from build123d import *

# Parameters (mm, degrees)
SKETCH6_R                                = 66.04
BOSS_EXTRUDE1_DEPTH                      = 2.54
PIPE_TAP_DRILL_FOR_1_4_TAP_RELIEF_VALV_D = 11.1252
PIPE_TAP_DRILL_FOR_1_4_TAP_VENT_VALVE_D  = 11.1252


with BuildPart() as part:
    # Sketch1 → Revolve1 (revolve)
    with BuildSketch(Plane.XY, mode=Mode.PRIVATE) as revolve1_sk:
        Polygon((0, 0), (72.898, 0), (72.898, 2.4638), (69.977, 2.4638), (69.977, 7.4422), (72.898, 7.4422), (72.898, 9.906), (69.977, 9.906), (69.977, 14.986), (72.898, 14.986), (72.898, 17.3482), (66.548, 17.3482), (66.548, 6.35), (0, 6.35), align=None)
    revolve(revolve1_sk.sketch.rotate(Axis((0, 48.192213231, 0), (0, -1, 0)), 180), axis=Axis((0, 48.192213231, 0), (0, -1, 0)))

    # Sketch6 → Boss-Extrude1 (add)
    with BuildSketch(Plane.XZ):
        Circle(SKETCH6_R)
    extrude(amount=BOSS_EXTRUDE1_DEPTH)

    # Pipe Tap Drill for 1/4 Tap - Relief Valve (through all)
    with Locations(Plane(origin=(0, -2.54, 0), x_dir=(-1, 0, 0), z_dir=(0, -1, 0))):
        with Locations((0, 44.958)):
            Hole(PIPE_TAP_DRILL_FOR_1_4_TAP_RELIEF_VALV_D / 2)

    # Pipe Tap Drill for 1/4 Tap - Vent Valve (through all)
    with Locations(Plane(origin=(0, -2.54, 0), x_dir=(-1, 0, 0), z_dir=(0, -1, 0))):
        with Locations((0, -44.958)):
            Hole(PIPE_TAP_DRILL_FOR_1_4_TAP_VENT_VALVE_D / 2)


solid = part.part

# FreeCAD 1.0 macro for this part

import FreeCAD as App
import Part
import Sketcher

V = App.Vector
Q = App.Units.Quantity

doc = App.newDocument("Part")
params = doc.addObject("Spreadsheet::Sheet", "Params")
for row, (alias, value) in enumerate([
    ("sketch1_height", "0.2 in"),
    ("sketch1_width", "2.87 in"),
    ("sketch1_width2", "0.25 in"),
    ("sketch1_width3", "0.115 in"),
    ("sketch1_height2", "0.097 in"),
    ("revolution_angle", "360 deg"),
    ("sketch2_diameter", "5.2 in"),
    ("pad1_length", "0.1 in"),
    ("sketch3_diameter", "0.438 in"),
    ("hole_diameter", "0.438 in"),
    ("sketch4_diameter", "0.438 in"),
    ("hole2_diameter", "0.438 in"),
], start=1):
    params.set(f"A{row}", alias)
    params.set(f"B{row}", "=" + value)
    params.setAlias(f"B{row}", alias)

body = doc.addObject("PartDesign::Body", "Body")

# Sketch on XY plane
sketch1 = doc.addObject("Sketcher::SketchObject", "Sketch")
body.addObject(sketch1)
sketch1.AttachmentSupport = (doc.XY_Plane, [""])
sketch1.MapMode = "FlatFace"
sketch1.addGeometry([
    Part.LineSegment(V(0, 0, 0), V(72.898, 0, 0)),  # 0
    Part.LineSegment(V(72.898, 0, 0), V(72.898, 2.4638, 0)),  # 1
    Part.LineSegment(V(72.898, 2.4638, 0), V(69.977, 2.4638, 0)),  # 2
    Part.LineSegment(V(69.977, 2.4638, 0), V(69.977, 7.4422, 0)),  # 3
    Part.LineSegment(V(69.977, 7.4422, 0), V(72.898, 7.4422, 0)),  # 4
    Part.LineSegment(V(72.898, 7.4422, 0), V(72.898, 9.906, 0)),  # 5
    Part.LineSegment(V(72.898, 9.906, 0), V(69.977, 9.906, 0)),  # 6
    Part.LineSegment(V(69.977, 9.906, 0), V(69.977, 14.986, 0)),  # 7
    Part.LineSegment(V(69.977, 14.986, 0), V(72.898, 14.986, 0)),  # 8
    Part.LineSegment(V(72.898, 14.986, 0), V(72.898, 17.3482, 0)),  # 9
    Part.LineSegment(V(72.898, 17.3482, 0), V(66.548, 17.3482, 0)),  # 10
    Part.LineSegment(V(66.548, 17.3482, 0), V(66.548, 6.35, 0)),  # 11
    Part.LineSegment(V(66.548, 6.35, 0), V(0, 6.35, 0)),  # 12
    Part.LineSegment(V(0, 6.35, 0), V(0, 0, 0)),  # 13
], False)
sketch1.addConstraint([
    Sketcher.Constraint("Coincident", 0, 2, 1, 1),
    Sketcher.Constraint("Coincident", 1, 2, 2, 1),
    Sketcher.Constraint("Coincident", 2, 2, 3, 1),
    Sketcher.Constraint("Coincident", 3, 2, 4, 1),
    Sketcher.Constraint("Coincident", 4, 2, 5, 1),
    Sketcher.Constraint("Coincident", 5, 2, 6, 1),
    Sketcher.Constraint("Coincident", 6, 2, 7, 1),
    Sketcher.Constraint("Coincident", 7, 2, 8, 1),
    Sketcher.Constraint("Coincident", 8, 2, 9, 1),
    Sketcher.Constraint("Coincident", 9, 2, 10, 1),
    Sketcher.Constraint("Coincident", 10, 2, 11, 1),
    Sketcher.Constraint("Coincident", 11, 2, 12, 1),
    Sketcher.Constraint("Coincident", 12, 2, 13, 1),
    Sketcher.Constraint("Coincident", 13, 2, 0, 1),
    Sketcher.Constraint("Horizontal", 0),
    Sketcher.Constraint("Vertical", 1),
    Sketcher.Constraint("Horizontal", 2),
    Sketcher.Constraint("Vertical", 3),
    Sketcher.Constraint("Horizontal", 4),
    Sketcher.Constraint("Vertical", 5),
    Sketcher.Constraint("Horizontal", 6),
    Sketcher.Constraint("Vertical", 7),
    Sketcher.Constraint("Horizontal", 8),
    Sketcher.Constraint("Vertical", 9),
    Sketcher.Constraint("Horizontal", 10),
    Sketcher.Constraint("Vertical", 11),
    Sketcher.Constraint("Horizontal", 12),
    Sketcher.Constraint("Vertical", 13),
    Sketcher.Constraint("Coincident", 13, 2, -1, 1),
    Sketcher.Constraint("Vertical", 1, 2, 4, 2),
    Sketcher.Constraint("Vertical", 3, 2, 6, 2),
    Sketcher.Constraint("Vertical", 5, 2, 8, 2),
    Sketcher.Constraint("Equal", 1, 5),
    Sketcher.Constraint("Equal", 10, 13),
    Sketcher.Constraint("DistanceY", 7, 1, 7, 2, Q("0.2 in")),
    Sketcher.Constraint("DistanceX", 0, 1, 0, 2, Q("2.87 in")),
    Sketcher.Constraint("DistanceX", 10, 2, 10, 1, Q("0.25 in")),
    Sketcher.Constraint("DistanceX", 2, 2, 2, 1, Q("0.115 in")),
    Sketcher.Constraint("DistanceY", 1, 1, 1, 2, Q("0.097 in")),
    Sketcher.Constraint("DistanceY", 3, 1, 3, 2, Q("0.196 in")),
    Sketcher.Constraint("DistanceY", 9, 1, 9, 2, Q("0.093 in")),
])
sketch1.setExpression("Constraints[34]", "Params.sketch1_height")
sketch1.setExpression("Constraints[35]", "Params.sketch1_width")
sketch1.setExpression("Constraints[36]", "Params.sketch1_width2")
sketch1.setExpression("Constraints[37]", "Params.sketch1_width3")
sketch1.setExpression("Constraints[38]", "Params.sketch1_height2")
revolution = doc.addObject("PartDesign::Revolution", "Revolution")
body.addObject(revolution)
revolution.Profile = sketch1
revolution.ReferenceAxis = (sketch1, ["V_Axis"])
revolution.setExpression("Angle", "Params.revolution_angle")

# Sketch on XZ plane
sketch2 = doc.addObject("Sketcher::SketchObject", "Sketch001")
body.addObject(sketch2)
sketch2.AttachmentSupport = (doc.XZ_Plane, [""])
sketch2.MapMode = "FlatFace"
sketch2.addGeometry(Part.Circle(V(0, 0, 0), V(0, 0, 1), 66.04), False)
sketch2.addConstraint([
    Sketcher.Constraint("Coincident", 0, 3, -1, 1),
    Sketcher.Constraint("Diameter", 0, Q("5.2 in")),
])
sketch2.setExpression("Constraints[1]", "Params.sketch2_diameter")
pad1 = doc.addObject("PartDesign::Pad", "Pad")
body.addObject(pad1)
pad1.Profile = sketch2
pad1.setExpression("Length", "Params.pad1_length")

# Sketch on XZ plane
sketch3 = doc.addObject("Sketcher::SketchObject", "Sketch002")
body.addObject(sketch3)
sketch3.AttachmentSupport = (doc.XZ_Plane, [""])
sketch3.MapMode = "FlatFace"
sketch3.AttachmentOffset = App.Placement(V(0, 0, 0.1 * 25.4), App.Rotation())
sketch3.addGeometry(Part.Circle(V(0, -44.958, 0), V(0, 0, 1), 5.5626), False)
sketch3.addConstraint([
    Sketcher.Constraint("PointOnObject", 0, 3, -2),
    Sketcher.Constraint("Diameter", 0, Q("0.438 in")),
    Sketcher.Constraint("DistanceY", 0, 3, -1, 1, Q("1.77 in")),
])
sketch3.setExpression("Constraints[1]", "Params.sketch3_diameter")
doc.recompute()
hole = doc.addObject("PartDesign::Hole", "Hole")
body.addObject(hole)
hole.Profile = sketch3
hole.ThreadType = "None"
hole.setExpression("Diameter", "Params.hole_diameter")
hole.DepthType = "ThroughAll"

# Sketch on XZ plane
sketch4 = doc.addObject("Sketcher::SketchObject", "Sketch003")
body.addObject(sketch4)
sketch4.AttachmentSupport = (doc.XZ_Plane, [""])
sketch4.MapMode = "FlatFace"
sketch4.AttachmentOffset = App.Placement(V(0, 0, 0.1 * 25.4), App.Rotation())
sketch4.addGeometry(Part.Circle(V(0, 44.958, 0), V(0, 0, 1), 5.5626), False)
sketch4.addConstraint([
    Sketcher.Constraint("PointOnObject", 0, 3, -2),
    Sketcher.Constraint("Diameter", 0, Q("0.438 in")),
    Sketcher.Constraint("DistanceY", -1, 1, 0, 3, Q("1.77 in")),
])
sketch4.setExpression("Constraints[1]", "Params.sketch4_diameter")
doc.recompute()
hole2 = doc.addObject("PartDesign::Hole", "Hole001")
body.addObject(hole2)
hole2.Profile = sketch4
hole2.ThreadType = "None"
hole2.setExpression("Diameter", "Params.hole2_diameter")
hole2.DepthType = "ThroughAll"

doc.recompute()
